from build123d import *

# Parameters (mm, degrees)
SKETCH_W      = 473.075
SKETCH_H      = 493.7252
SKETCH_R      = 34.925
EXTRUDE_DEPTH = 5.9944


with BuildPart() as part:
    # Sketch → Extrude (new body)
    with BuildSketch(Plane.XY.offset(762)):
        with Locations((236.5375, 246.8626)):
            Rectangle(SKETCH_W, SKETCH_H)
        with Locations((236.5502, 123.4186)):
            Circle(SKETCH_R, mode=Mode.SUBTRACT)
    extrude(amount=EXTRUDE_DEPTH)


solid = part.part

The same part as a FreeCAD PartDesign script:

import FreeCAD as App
import Part
import Sketcher

V = App.Vector
Q = App.Units.Quantity


def add_polygon(sketch, points):
    """Adds a closed chain of lines whose ends are joined by coincident constraints."""
    first, n = sketch.GeometryCount, len(points)
    for a, b in zip(points, points[1:] + points[:1]):
        sketch.addGeometry(Part.LineSegment(App.Vector(*a, 0), App.Vector(*b, 0)), False)
    for i in range(n):
        sketch.addConstraint(Sketcher.Constraint("Coincident", first + i, 2, first + (i + 1) % n, 1))

doc = App.newDocument("Part")
body = doc.addObject("PartDesign::Body", "Body")

sketch1 = doc.addObject("Sketcher::SketchObject", "Sketch")
body.addObject(sketch1)
sketch1.AttachmentSupport = (doc.XY_Plane, [""])
sketch1.MapMode = "FlatFace"
sketch1.AttachmentOffset = App.Placement(V(0, 0, 30 * 25.4), App.Rotation())
add_polygon(sketch1, [(0, 494), (0, 0), (473, 0), (473, 494)])
sketch1.addGeometry(Part.Circle(V(237, 123, 0), V(0, 0, 1), 35), False)
sketch1.addConstraint(Sketcher.Constraint("Vertical", 0))
sketch1.addConstraint(Sketcher.Constraint("Horizontal", 1))
sketch1.addConstraint(Sketcher.Constraint("Vertical", 2))
sketch1.addConstraint(Sketcher.Constraint("Horizontal", 3))
sketch1.addConstraint(Sketcher.Constraint("Coincident", 0, 2, -1, 1))
sketch1.addConstraint(Sketcher.Constraint("Diameter", 4, Q("2.75 in")))
sketch1.addConstraint(Sketcher.Constraint("DistanceX", 1, 1, 1, 2, Q("18.625 in")))
sketch1.addConstraint(Sketcher.Constraint("DistanceY", 0, 2, 0, 1, Q("19.438 in")))
sketch1.addConstraint(Sketcher.Constraint("DistanceX", -1, 1, 4, 3, Q("9.313 in")))
sketch1.addConstraint(Sketcher.Constraint("DistanceY", -1, 1, 4, 3, Q("4.859 in")))
pad1 = doc.addObject("PartDesign::Pad", "Pad")
body.addObject(pad1)
pad1.Profile = sketch1
pad1.Length = Q("0.236 in")

doc.recompute()
